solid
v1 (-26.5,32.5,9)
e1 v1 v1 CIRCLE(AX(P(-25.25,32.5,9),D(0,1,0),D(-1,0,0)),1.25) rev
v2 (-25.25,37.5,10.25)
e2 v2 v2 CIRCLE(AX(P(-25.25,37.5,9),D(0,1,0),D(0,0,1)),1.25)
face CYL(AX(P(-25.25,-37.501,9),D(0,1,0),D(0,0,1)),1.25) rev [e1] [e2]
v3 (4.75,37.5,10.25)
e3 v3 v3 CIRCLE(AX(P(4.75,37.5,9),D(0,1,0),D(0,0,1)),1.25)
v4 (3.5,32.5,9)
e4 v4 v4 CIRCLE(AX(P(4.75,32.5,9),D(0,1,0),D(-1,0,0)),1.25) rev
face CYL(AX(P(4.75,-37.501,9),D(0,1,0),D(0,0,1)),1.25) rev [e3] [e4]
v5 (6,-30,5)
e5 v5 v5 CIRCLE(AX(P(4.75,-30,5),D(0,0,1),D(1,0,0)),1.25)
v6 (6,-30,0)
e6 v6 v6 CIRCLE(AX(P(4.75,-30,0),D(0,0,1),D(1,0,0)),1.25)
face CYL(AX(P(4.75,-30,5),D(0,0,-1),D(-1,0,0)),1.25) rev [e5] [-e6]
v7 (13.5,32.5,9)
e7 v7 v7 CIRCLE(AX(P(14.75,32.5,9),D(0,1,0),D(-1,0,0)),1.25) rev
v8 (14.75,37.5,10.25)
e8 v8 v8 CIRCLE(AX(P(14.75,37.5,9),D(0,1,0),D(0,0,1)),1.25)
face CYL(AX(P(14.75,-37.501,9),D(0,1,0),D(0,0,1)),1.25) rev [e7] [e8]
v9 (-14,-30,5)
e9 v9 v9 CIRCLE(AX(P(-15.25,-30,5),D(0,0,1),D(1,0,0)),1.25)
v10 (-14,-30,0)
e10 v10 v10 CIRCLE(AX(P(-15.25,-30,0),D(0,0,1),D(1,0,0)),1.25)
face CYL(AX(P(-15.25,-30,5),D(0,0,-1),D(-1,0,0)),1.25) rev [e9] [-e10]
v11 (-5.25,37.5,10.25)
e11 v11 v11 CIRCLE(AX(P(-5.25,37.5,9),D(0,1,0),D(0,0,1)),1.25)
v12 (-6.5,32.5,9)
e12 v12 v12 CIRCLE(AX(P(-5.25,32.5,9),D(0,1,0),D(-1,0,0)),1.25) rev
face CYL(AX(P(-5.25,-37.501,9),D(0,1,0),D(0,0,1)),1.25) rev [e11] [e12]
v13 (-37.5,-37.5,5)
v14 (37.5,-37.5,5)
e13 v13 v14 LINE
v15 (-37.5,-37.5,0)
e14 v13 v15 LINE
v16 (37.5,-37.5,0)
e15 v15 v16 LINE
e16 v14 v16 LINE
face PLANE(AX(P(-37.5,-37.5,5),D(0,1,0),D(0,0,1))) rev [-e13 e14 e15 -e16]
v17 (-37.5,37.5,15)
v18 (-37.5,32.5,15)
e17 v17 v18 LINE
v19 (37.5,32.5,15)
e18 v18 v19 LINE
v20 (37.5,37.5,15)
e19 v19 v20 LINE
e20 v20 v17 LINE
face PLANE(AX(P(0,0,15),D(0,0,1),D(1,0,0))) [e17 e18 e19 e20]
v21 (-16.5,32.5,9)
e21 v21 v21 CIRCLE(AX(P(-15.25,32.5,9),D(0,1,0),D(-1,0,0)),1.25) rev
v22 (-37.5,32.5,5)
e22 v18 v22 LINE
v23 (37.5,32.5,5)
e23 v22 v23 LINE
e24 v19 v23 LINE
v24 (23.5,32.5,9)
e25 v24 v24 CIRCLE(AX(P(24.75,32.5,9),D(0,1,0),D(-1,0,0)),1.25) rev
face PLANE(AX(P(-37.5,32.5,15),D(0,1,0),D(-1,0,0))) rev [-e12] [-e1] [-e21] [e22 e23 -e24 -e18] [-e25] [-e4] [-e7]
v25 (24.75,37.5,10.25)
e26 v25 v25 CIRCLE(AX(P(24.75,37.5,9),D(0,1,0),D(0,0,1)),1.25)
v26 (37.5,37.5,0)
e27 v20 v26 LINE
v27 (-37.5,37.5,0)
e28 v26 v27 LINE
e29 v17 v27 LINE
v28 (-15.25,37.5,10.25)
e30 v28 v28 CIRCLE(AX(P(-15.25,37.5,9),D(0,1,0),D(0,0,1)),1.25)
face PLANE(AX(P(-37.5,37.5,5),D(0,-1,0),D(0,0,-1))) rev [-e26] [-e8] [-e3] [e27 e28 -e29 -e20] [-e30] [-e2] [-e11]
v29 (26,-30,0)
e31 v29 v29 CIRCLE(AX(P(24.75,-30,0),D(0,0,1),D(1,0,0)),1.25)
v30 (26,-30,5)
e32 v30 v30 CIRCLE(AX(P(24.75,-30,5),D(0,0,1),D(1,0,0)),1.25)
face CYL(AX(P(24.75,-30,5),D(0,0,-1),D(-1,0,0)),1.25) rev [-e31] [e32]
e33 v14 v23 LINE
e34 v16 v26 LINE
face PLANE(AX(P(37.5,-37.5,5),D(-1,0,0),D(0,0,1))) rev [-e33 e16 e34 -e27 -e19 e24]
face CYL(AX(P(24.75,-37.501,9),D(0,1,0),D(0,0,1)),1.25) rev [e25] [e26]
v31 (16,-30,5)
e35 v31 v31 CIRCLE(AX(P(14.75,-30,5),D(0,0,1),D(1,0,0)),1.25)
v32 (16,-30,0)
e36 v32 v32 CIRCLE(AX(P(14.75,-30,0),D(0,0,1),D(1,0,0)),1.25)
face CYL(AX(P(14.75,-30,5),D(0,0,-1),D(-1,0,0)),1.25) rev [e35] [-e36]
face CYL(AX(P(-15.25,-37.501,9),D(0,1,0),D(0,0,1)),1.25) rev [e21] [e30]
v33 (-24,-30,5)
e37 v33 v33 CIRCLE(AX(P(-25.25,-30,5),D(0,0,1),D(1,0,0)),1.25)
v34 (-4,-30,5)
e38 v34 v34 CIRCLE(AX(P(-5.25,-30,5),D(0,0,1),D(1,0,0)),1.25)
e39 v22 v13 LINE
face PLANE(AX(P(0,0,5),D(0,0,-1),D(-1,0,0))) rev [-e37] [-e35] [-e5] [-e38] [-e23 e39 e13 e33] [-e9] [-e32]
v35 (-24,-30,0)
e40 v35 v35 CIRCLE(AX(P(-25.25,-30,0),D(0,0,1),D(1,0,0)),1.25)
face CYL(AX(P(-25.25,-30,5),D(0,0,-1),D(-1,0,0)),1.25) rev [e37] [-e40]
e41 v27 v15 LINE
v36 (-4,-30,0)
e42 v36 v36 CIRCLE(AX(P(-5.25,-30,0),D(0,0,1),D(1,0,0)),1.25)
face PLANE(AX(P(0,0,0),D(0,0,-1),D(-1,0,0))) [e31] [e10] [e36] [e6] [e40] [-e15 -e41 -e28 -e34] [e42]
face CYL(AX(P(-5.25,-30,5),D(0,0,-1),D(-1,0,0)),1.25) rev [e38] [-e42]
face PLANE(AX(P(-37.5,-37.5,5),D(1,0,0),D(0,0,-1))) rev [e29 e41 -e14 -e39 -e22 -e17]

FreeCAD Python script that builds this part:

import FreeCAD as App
import Part
import Sketcher
from FreeCAD import Vector


def add_polygon(sketch, points):
    """Adds a closed chain of lines whose ends are joined by coincident constraints."""
    first, n = sketch.GeometryCount, len(points)
    for a, b in zip(points, points[1:] + points[:1]):
        sketch.addGeometry(Part.LineSegment(App.Vector(*a, 0), App.Vector(*b, 0)), False)
    for i in range(n):
        sketch.addConstraint(Sketcher.Constraint("Coincident", first + i, 2, first + (i + 1) % n, 1))

doc = App.newDocument("Part")
params = doc.addObject("Spreadsheet::Sheet", "Params")
for row, (alias, value) in enumerate([
    ("sketch1_diameter", "2.5 mm"),
    ("sketch1_width", "75 mm"),
    ("pad1_length", "5 mm"),
    ("sketch2_width", "75 mm"),
    ("sketch2_height", "5 mm"),
    ("pad2_length", "10 mm"),
    ("sketch3_diameter", "2.5 mm"),
    ("sketch4_diameter", "2.5 mm"),
    ("sketch5_diameter", "2.5 mm"),
    ("sketch6_diameter", "2.5 mm"),
    ("sketch7_diameter", "2.5 mm"),
    ("sketch8_diameter", "2.5 mm"),
], start=1):
    params.set(f"A{row}", alias)
    params.set(f"B{row}", "=" + value)
    params.setAlias(f"B{row}", alias)

body = doc.addObject("PartDesign::Body", "Body")

# Sketch on XY plane
sketch1 = body.newObject("Sketcher::SketchObject", "Sketch")
sketch1.AttachmentSupport = (doc.getObject("XY_Plane"), [""])
sketch1.MapMode = "FlatFace"
add_polygon(sketch1, [(-37.5, 37.5), (-37.5, -37.5), (37.5, -37.5), (37.5, 37.5)])  # lines 0-3
sketch1.addGeometry(Part.Circle(Vector(-25.2, -30, 0), Vector(0, 0, 1), 1.2), False)  # 4
sketch1.addGeometry(Part.Circle(Vector(-15.2, -30, 0), Vector(0, 0, 1), 1.2), False)  # 5
sketch1.addGeometry(Part.Circle(Vector(-5.2, -30, 0), Vector(0, 0, 1), 1.2), False)  # 6
sketch1.addGeometry(Part.Circle(Vector(4.8, -30, 0), Vector(0, 0, 1), 1.2), False)  # 7
sketch1.addGeometry(Part.Circle(Vector(14.8, -30, 0), Vector(0, 0, 1), 1.2), False)  # 8
sketch1.addGeometry(Part.Circle(Vector(24.8, -30, 0), Vector(0, 0, 1), 1.2), False)  # 9
sketch1.addConstraint([
    Sketcher.Constraint("Vertical", 0),
    Sketcher.Constraint("Horizontal", 1),
    Sketcher.Constraint("Vertical", 2),
    Sketcher.Constraint("Horizontal", 3),
    Sketcher.Constraint("Equal", 4, 5),
    Sketcher.Constraint("Equal", 5, 6),
    Sketcher.Constraint("Equal", 6, 7),
    Sketcher.Constraint("Equal", 7, 8),
    Sketcher.Constraint("Equal", 8, 9),
    Sketcher.Constraint("Symmetric", 0, 2, 2, 2, -1, 1),
    Sketcher.Constraint("Horizontal", 4, 3, 5, 3),
    Sketcher.Constraint("Horizontal", 5, 3, 6, 3),
    Sketcher.Constraint("Horizontal", 6, 3, 7, 3),
    Sketcher.Constraint("Horizontal", 7, 3, 8, 3),
    Sketcher.Constraint("Horizontal", 8, 3, 9, 3),
    Sketcher.Constraint("Equal", 3, 0),
    Sketcher.Constraint("Diameter", 4, 2.5),
    Sketcher.Constraint("DistanceX", 1, 1, 1, 2, 75.0),
    Sketcher.Constraint("DistanceY", 4, 3, -1, 1, 30.0),
    Sketcher.Constraint("DistanceX", 4, 3, 5, 3, 10.0),
    Sketcher.Constraint("DistanceX", 5, 3, 6, 3, 10.0),
    Sketcher.Constraint("DistanceX", 6, 3, 7, 3, 10.0),
    Sketcher.Constraint("DistanceX", 7, 3, 8, 3, 10.0),
    Sketcher.Constraint("DistanceX", 8, 3, 9, 3, 10.0),
    Sketcher.Constraint("DistanceX", 4, 3, -1, 1, 25.25),
])
sketch1.setExpression("Constraints[20]", "Params.sketch1_diameter")
sketch1.setExpression("Constraints[21]", "Params.sketch1_width")
pad1 = body.newObject("PartDesign::Pad", "Pad")
pad1.Profile = sketch1
pad1.setExpression("Length", "Params.pad1_length")

# Sketch on XY plane
sketch2 = body.newObject("Sketcher::SketchObject", "Sketch001")
sketch2.AttachmentSupport = (doc.getObject("XY_Plane"), [""])
sketch2.MapMode = "FlatFace"
sketch2.AttachmentOffset = App.Placement(Vector(0, 0, 5), App.Rotation())
add_polygon(sketch2, [(-38, 38), (-38, 32), (38, 32), (38, 38)])  # lines 0-3
sketch2.addConstraint([
    Sketcher.Constraint("Vertical", 0),
    Sketcher.Constraint("Horizontal", 1),
    Sketcher.Constraint("Vertical", 2),
    Sketcher.Constraint("Horizontal", 3),
    Sketcher.Constraint("DistanceX", 1, 1, 1, 2, 75.0),
    Sketcher.Constraint("DistanceY", 0, 2, 0, 1, 5.0),
    Sketcher.Constraint("DistanceX", 0, 2, -1, 1, 37.5),
    Sketcher.Constraint("DistanceY", -1, 1, 0, 2, 32.5),
])
sketch2.setExpression("Constraints[8]", "Params.sketch2_width")
sketch2.setExpression("Constraints[9]", "Params.sketch2_height")
pad2 = body.newObject("PartDesign::Pad", "Pad001")
pad2.Profile = sketch2
pad2.setExpression("Length", "Params.pad2_length")

# Sketch on XZ plane
sketch3 = body.newObject("Sketcher::SketchObject", "Sketch002")
sketch3.AttachmentSupport = (doc.getObject("XZ_Plane"), [""])
sketch3.MapMode = "FlatFace"
sketch3.AttachmentOffset = App.Placement(Vector(0, 0, -37.5), App.Rotation())
sketch3.addGeometry(Part.Circle(Vector(-25.2, 9, 0), Vector(0, 0, 1), 1.2), False)
sketch3.addConstraint([
    Sketcher.Constraint("Diameter", 0, 2.5),
    Sketcher.Constraint("DistanceY", -1, 1, 0, 3, 9.0),
    Sketcher.Constraint("DistanceX", 0, 3, -1, 1, 25.25),
])
sketch3.setExpression("Constraints[0]", "Params.sketch3_diameter")
pocket1 = body.newObject("PartDesign::Pocket", "Pocket")
pocket1.Profile = sketch3
pocket1.Type = "UpToFirst"
pocket1.Reversed = True

# Sketch on XZ plane
sketch4 = body.newObject("Sketcher::SketchObject", "Sketch003")
sketch4.AttachmentSupport = (doc.getObject("XZ_Plane"), [""])
sketch4.MapMode = "FlatFace"
sketch4.AttachmentOffset = App.Placement(Vector(0, 0, -37.5), App.Rotation())
sketch4.addGeometry(Part.Circle(Vector(-15.2, 9, 0), Vector(0, 0, 1), 1.2), False)
sketch4.addConstraint([
    Sketcher.Constraint("Diameter", 0, 2.5),
    Sketcher.Constraint("DistanceY", -1, 1, 0, 3, 9.0),
    Sketcher.Constraint("DistanceX", 0, 3, -1, 1, 15.25),
])
sketch4.setExpression("Constraints[0]", "Params.sketch4_diameter")
pocket2 = body.newObject("PartDesign::Pocket", "Pocket001")
pocket2.Profile = sketch4
pocket2.Type = "UpToFirst"
pocket2.Reversed = True

# Sketch on XZ plane
sketch5 = body.newObject("Sketcher::SketchObject", "Sketch004")
sketch5.AttachmentSupport = (doc.getObject("XZ_Plane"), [""])
sketch5.MapMode = "FlatFace"
sketch5.AttachmentOffset = App.Placement(Vector(0, 0, -37.5), App.Rotation())
sketch5.addGeometry(Part.Circle(Vector(-5.2, 9, 0), Vector(0, 0, 1), 1.2), False)
sketch5.addConstraint([
    Sketcher.Constraint("Diameter", 0, 2.5),
    Sketcher.Constraint("DistanceY", -1, 1, 0, 3, 9.0),
    Sketcher.Constraint("DistanceX", 0, 3, -1, 1, 5.25),
])
sketch5.setExpression("Constraints[0]", "Params.sketch5_diameter")
pocket3 = body.newObject("PartDesign::Pocket", "Pocket002")
pocket3.Profile = sketch5
pocket3.Type = "UpToFirst"
pocket3.Reversed = True

# Sketch on XZ plane
sketch6 = body.newObject("Sketcher::SketchObject", "Sketch005")
sketch6.AttachmentSupport = (doc.getObject("XZ_Plane"), [""])
sketch6.MapMode = "FlatFace"
sketch6.AttachmentOffset = App.Placement(Vector(0, 0, -37.5), App.Rotation())
sketch6.addGeometry(Part.Circle(Vector(4.8, 9, 0), Vector(0, 0, 1), 1.2), False)
sketch6.addConstraint([
    Sketcher.Constraint("Diameter", 0, 2.5),
    Sketcher.Constraint("DistanceY", -1, 1, 0, 3, 9.0),
    Sketcher.Constraint("DistanceX", -1, 1, 0, 3, 4.75),
])
sketch6.setExpression("Constraints[0]", "Params.sketch6_diameter")
pocket4 = body.newObject("PartDesign::Pocket", "Pocket003")
pocket4.Profile = sketch6
pocket4.Type = "UpToFirst"
pocket4.Reversed = True

# Sketch on XZ plane
sketch7 = body.newObject("Sketcher::SketchObject", "Sketch006")
sketch7.AttachmentSupport = (doc.getObject("XZ_Plane"), [""])
sketch7.MapMode = "FlatFace"
sketch7.AttachmentOffset = App.Placement(Vector(0, 0, -37.5), App.Rotation())
sketch7.addGeometry(Part.Circle(Vector(14.8, 9, 0), Vector(0, 0, 1), 1.2), False)
sketch7.addConstraint([
    Sketcher.Constraint("Diameter", 0, 2.5),
    Sketcher.Constraint("DistanceY", -1, 1, 0, 3, 9.0),
    Sketcher.Constraint("DistanceX", -1, 1, 0, 3, 14.75),
])
sketch7.setExpression("Constraints[0]", "Params.sketch7_diameter")
pocket5 = body.newObject("PartDesign::Pocket", "Pocket004")
pocket5.Profile = sketch7
pocket5.Type = "UpToFirst"
pocket5.Reversed = True

# Sketch on XZ plane
sketch8 = body.newObject("Sketcher::SketchObject", "Sketch007")
sketch8.AttachmentSupport = (doc.getObject("XZ_Plane"), [""])
sketch8.MapMode = "FlatFace"
sketch8.AttachmentOffset = App.Placement(Vector(0, 0, -37.5), App.Rotation())
sketch8.addGeometry(Part.Circle(Vector(24.8, 9, 0), Vector(0, 0, 1), 1.2), False)
sketch8.addConstraint([
    Sketcher.Constraint("Diameter", 0, 2.5),
    Sketcher.Constraint("DistanceY", -1, 1, 0, 3, 9.0),
    Sketcher.Constraint("DistanceX", -1, 1, 0, 3, 24.75),
])
sketch8.setExpression("Constraints[0]", "Params.sketch8_diameter")
pocket6 = body.newObject("PartDesign::Pocket", "Pocket005")
pocket6.Profile = sketch8
pocket6.Type = "UpToFirst"
pocket6.Reversed = True

doc.recompute()
